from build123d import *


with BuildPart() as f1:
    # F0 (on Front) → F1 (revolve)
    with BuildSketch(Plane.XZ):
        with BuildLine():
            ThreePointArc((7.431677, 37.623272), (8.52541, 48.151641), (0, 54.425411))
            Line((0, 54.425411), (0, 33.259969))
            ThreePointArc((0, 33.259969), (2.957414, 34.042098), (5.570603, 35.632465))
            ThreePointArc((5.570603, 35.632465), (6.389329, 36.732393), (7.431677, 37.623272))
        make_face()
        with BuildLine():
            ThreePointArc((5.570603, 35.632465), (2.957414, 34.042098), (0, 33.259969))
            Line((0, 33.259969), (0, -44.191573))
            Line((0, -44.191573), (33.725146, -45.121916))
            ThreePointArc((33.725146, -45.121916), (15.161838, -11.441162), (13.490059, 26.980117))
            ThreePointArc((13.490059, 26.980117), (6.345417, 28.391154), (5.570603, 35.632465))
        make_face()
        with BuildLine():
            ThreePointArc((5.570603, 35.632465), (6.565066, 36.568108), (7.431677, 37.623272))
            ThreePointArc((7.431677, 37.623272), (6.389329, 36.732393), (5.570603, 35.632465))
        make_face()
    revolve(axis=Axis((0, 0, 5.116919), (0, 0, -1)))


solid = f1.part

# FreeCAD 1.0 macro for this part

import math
import FreeCAD as App
import Part
import Sketcher

V = App.Vector
Q = App.Units.Quantity

doc = App.newDocument("Part")
params = doc.addObject("Spreadsheet::Sheet", "Params")
for row, (alias, value) in enumerate([
    ("revolution_angle", "360 deg"),
], start=1):
    params.set(f"A{row}", alias)
    params.set(f"B{row}", "=" + value)
    params.setAlias(f"B{row}", alias)

body = doc.addObject("PartDesign::Body", "Body")

# Sketch on XZ plane
sketch1 = body.newObject("Sketcher::SketchObject", "Sketch")
sketch1.AttachmentSupport = (doc.getObject("XZ_Plane"), [""])
sketch1.MapMode = "FlatFace"
sketch1.addGeometry([
    Part.ArcOfCircle(Part.Circle(V(-1.2, 43.8, 0), V(0, 0, 1), 10.7), math.radians(-36), math.radians(83)),  # 0
    Part.LineSegment(V(0, 54.4, 0), V(0, -44.2, 0)),  # 1
    Part.LineSegment(V(0, -44.2, 0), V(33.7, -45.1, 0)),  # 2
    Part.ArcOfCircle(Part.Circle(V(96.3, 11.3, 0), V(0, 0, 1), 84.3), math.radians(169), math.radians(222)),  # 3
    Part.ArcOfCircle(Part.Circle(V(10.9, 32.5, 0), V(0, 0, 1), 6.1), math.radians(150), math.radians(295)),  # 4
    Part.ArcOfCircle(Part.Circle(V(-1.2, 43.8, 0), V(0, 0, 1), 10.7), math.radians(-50.42), math.radians(-35.72)),  # 5
], False)
sketch1.addConstraint([
    Sketcher.Constraint("Coincident", 0, 2, 1, 1),
    Sketcher.Constraint("Coincident", 1, 2, 2, 1),
    Sketcher.Constraint("Coincident", 2, 2, 3, 2),
    Sketcher.Constraint("Coincident", 3, 1, 4, 2),
    Sketcher.Constraint("Coincident", 4, 1, 5, 1),
    Sketcher.Constraint("Tangent", 5, 2, 0, 1),
    Sketcher.Constraint("Vertical", 1),
    Sketcher.Constraint("PointOnObject", 0, 2, -2),
    Sketcher.Constraint("Radius", 3, Q("84.301129 mm")),
    Sketcher.Constraint("Radius", 4, Q("6.14194 mm")),
    Sketcher.Constraint("Radius", 0, Q("10.652424 mm")),
    Sketcher.Constraint("Radius", 5, Q("10.652515 mm")),
    Sketcher.Constraint("DistanceY", -1, 1, 3, 3, Q("11.337499 mm")),
    Sketcher.Constraint("DistanceY", 1, 2, 1, 1, Q("98.616984 mm")),
    Sketcher.Constraint("DistanceY", -1, 1, 0, 3, Q("43.84269 mm")),
    Sketcher.Constraint("DistanceX", -1, 1, 3, 3, Q("96.327181 mm")),
    Sketcher.Constraint("DistanceY", -1, 1, 0, 2, Q("54.425411 mm")),
    Sketcher.Constraint("DistanceX", -1, 1, 3, 1, Q("13.490059 mm")),
    Sketcher.Constraint("DistanceY", -1, 1, 5, 2, Q("37.623272 mm")),
    Sketcher.Constraint("DistanceY", 3, 3, 4, 3, Q("21.200539 mm")),
    Sketcher.Constraint("DistanceX", 4, 3, 2, 2, Q("22.849079 mm")),
])
revolution = body.newObject("PartDesign::Revolution", "Revolution")
revolution.Profile = sketch1
revolution.ReferenceAxis = (sketch1, ["V_Axis"])
revolution.setExpression("Angle", "Params.revolution_angle")

doc.recompute()
